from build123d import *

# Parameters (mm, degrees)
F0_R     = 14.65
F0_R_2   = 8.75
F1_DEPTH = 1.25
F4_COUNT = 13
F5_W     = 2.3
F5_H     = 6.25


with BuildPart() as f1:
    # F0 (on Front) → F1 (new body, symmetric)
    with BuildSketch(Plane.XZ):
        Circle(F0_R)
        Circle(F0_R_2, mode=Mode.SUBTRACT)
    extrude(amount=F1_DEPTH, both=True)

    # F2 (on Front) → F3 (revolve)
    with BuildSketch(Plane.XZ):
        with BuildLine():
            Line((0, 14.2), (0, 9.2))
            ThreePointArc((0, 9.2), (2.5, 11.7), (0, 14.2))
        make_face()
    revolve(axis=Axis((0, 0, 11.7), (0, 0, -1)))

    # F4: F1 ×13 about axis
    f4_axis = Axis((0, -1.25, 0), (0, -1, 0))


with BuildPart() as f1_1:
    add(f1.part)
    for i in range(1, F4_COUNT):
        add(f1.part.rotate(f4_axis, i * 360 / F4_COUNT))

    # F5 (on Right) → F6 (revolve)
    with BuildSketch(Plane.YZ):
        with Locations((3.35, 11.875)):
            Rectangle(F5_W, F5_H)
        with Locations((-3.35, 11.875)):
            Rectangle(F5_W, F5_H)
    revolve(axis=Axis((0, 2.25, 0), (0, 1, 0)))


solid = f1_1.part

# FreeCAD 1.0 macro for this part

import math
import FreeCAD as App
import Part
import Sketcher

V = App.Vector
Q = App.Units.Quantity


def add_polygon(sketch, points):
    """Adds a closed chain of lines whose ends are joined by coincident constraints."""
    first, n = sketch.GeometryCount, len(points)
    for a, b in zip(points, points[1:] + points[:1]):
        sketch.addGeometry(Part.LineSegment(App.Vector(*a, 0), App.Vector(*b, 0)), False)
    for i in range(n):
        sketch.addConstraint(Sketcher.Constraint("Coincident", first + i, 2, first + (i + 1) % n, 1))

doc = App.newDocument("Part")
body = doc.addObject("PartDesign::Body", "Body")

# Sketch on XZ plane
sketch1 = body.newObject("Sketcher::SketchObject", "Sketch")
sketch1.AttachmentSupport = (doc.getObject("XZ_Plane"), [""])
sketch1.MapMode = "FlatFace"
sketch1.addGeometry([
    Part.Circle(V(0, 0, 0), V(0, 0, 1), 15),
    Part.Circle(V(0, 0, 0), V(0, 0, 1), 9),
], False)
sketch1.addConstraint([
    Sketcher.Constraint("Coincident", 0, 3, -1, 1),
    Sketcher.Constraint("Coincident", 1, 3, -1, 1),
    Sketcher.Constraint("Diameter", 0, Q("29.3 mm")),
    Sketcher.Constraint("Diameter", 1, Q("17.5 mm")),
])
pad1 = body.newObject("PartDesign::Pad", "Pad")
pad1.Profile = sketch1
pad1.Length = 2.5
pad1.Midplane = True

# Sketch on XZ plane
sketch2 = body.newObject("Sketcher::SketchObject", "Sketch001")
sketch2.AttachmentSupport = (doc.getObject("XZ_Plane"), [""])
sketch2.MapMode = "FlatFace"
sketch2.addGeometry([
    Part.LineSegment(V(0, 14.2, 0), V(0, 9.2, 0)),
    Part.ArcOfCircle(Part.Circle(V(0, 11.7, 0), V(0, 0, 1), 2.5), math.radians(-90), math.radians(90)),
], False)
sketch2.addConstraint([
    Sketcher.Constraint("Coincident", 0, 1, 1, 2),
    Sketcher.Constraint("Coincident", 1, 1, 0, 2),
    Sketcher.Constraint("Vertical", 0),
    Sketcher.Constraint("PointOnObject", 1, 3, -2),
    Sketcher.Constraint("PointOnObject", 0, 1, -2),
    Sketcher.Constraint("Radius", 1, Q("2.5 mm")),
    Sketcher.Constraint("DistanceY", -1, 1, 1, 3, Q("11.7 mm")),
])
revolution = body.newObject("PartDesign::Revolution", "Revolution")
revolution.Profile = sketch2
revolution.ReferenceAxis = (sketch2, ["V_Axis"])
revolution.Angle = 360
body2 = doc.addObject("PartDesign::Body", "Body001")
doc.recompute()

body2.BaseFeature = body
doc.recompute()

body3 = doc.addObject("PartDesign::Body", "Body002")
body3.BaseFeature = body
body3.Placement = App.Placement(V(0, 0, 0), App.Rotation(V(0, -1, 0), 27.692308))
boolean = body2.newObject("PartDesign::Boolean", "Boolean")
boolean.Type = "Fuse"
boolean.addObjects([body3])
doc.recompute()

body4 = doc.addObject("PartDesign::Body", "Body003")
body4.BaseFeature = body
body4.Placement = App.Placement(V(0, 0, 0), App.Rotation(V(0, -1, 0), 55.384615))
boolean2 = body2.newObject("PartDesign::Boolean", "Boolean001")
boolean2.Type = "Fuse"
boolean2.addObjects([body4])
doc.recompute()

body5 = doc.addObject("PartDesign::Body", "Body004")
body5.BaseFeature = body
body5.Placement = App.Placement(V(0, 0, 0), App.Rotation(V(0, -1, 0), 83.076923))
boolean3 = body2.newObject("PartDesign::Boolean", "Boolean002")
boolean3.Type = "Fuse"
boolean3.addObjects([body5])
doc.recompute()

body6 = doc.addObject("PartDesign::Body", "Body005")
body6.BaseFeature = body
body6.Placement = App.Placement(V(0, 0, 0), App.Rotation(V(0, -1, 0), 110.769231))
boolean4 = body2.newObject("PartDesign::Boolean", "Boolean003")
boolean4.Type = "Fuse"
boolean4.addObjects([body6])
doc.recompute()

body7 = doc.addObject("PartDesign::Body", "Body006")
body7.BaseFeature = body
body7.Placement = App.Placement(V(0, 0, 0), App.Rotation(V(0, -1, 0), 138.461538))
boolean5 = body2.newObject("PartDesign::Boolean", "Boolean004")
boolean5.Type = "Fuse"
boolean5.addObjects([body7])
doc.recompute()

body8 = doc.addObject("PartDesign::Body", "Body007")
body8.BaseFeature = body
body8.Placement = App.Placement(V(0, 0, 0), App.Rotation(V(0, -1, 0), 166.153846))
boolean6 = body2.newObject("PartDesign::Boolean", "Boolean005")
boolean6.Type = "Fuse"
boolean6.addObjects([body8])
doc.recompute()

body9 = doc.addObject("PartDesign::Body", "Body008")
body9.BaseFeature = body
body9.Placement = App.Placement(V(0, 0, 0), App.Rotation(V(0, -1, 0), 193.846154))
boolean7 = body2.newObject("PartDesign::Boolean", "Boolean006")
boolean7.Type = "Fuse"
boolean7.addObjects([body9])
doc.recompute()

body10 = doc.addObject("PartDesign::Body", "Body009")
body10.BaseFeature = body
body10.Placement = App.Placement(V(0, 0, 0), App.Rotation(V(0, -1, 0), 221.538462))
boolean8 = body2.newObject("PartDesign::Boolean", "Boolean007")
boolean8.Type = "Fuse"
boolean8.addObjects([body10])
doc.recompute()

body11 = doc.addObject("PartDesign::Body", "Body010")
body11.BaseFeature = body
body11.Placement = App.Placement(V(0, 0, 0), App.Rotation(V(0, -1, 0), 249.230769))
boolean9 = body2.newObject("PartDesign::Boolean", "Boolean008")
boolean9.Type = "Fuse"
boolean9.addObjects([body11])
doc.recompute()

body12 = doc.addObject("PartDesign::Body", "Body011")
body12.BaseFeature = body
body12.Placement = App.Placement(V(0, 0, 0), App.Rotation(V(0, -1, 0), 276.923077))
boolean10 = body2.newObject("PartDesign::Boolean", "Boolean009")
boolean10.Type = "Fuse"
boolean10.addObjects([body12])
doc.recompute()

body13 = doc.addObject("PartDesign::Body", "Body012")
body13.BaseFeature = body
body13.Placement = App.Placement(V(0, 0, 0), App.Rotation(V(0, -1, 0), 304.615385))
boolean11 = body2.newObject("PartDesign::Boolean", "Boolean010")
boolean11.Type = "Fuse"
boolean11.addObjects([body13])
doc.recompute()

body.Placement = App.Placement(V(0, 0, 0), App.Rotation(V(0, -1, 0), 332.307692))
boolean12 = body2.newObject("PartDesign::Boolean", "Boolean011")
boolean12.Type = "Fuse"
boolean12.addObjects([body])

# Sketch on YZ plane
sketch3 = body2.newObject("Sketcher::SketchObject", "Sketch002")
sketch3.AttachmentSupport = (doc.getObject("YZ_Plane001"), [""])
sketch3.MapMode = "FlatFace"
add_polygon(sketch3, [(2.2, 15), (2.2, 8.8), (4.5, 8.8), (4.5, 15)])  # lines 0-3
add_polygon(sketch3, [(-4.5, 15), (-4.5, 8.8), (-2.2, 8.8), (-2.2, 15)])  # lines 4-7
sketch3.addConstraint([
    Sketcher.Constraint("Vertical", 0),
    Sketcher.Constraint("Horizontal", 1),
    Sketcher.Constraint("Vertical", 2),
    Sketcher.Constraint("Horizontal", 3),
    Sketcher.Constraint("Vertical", 4),
    Sketcher.Constraint("Horizontal", 5),
    Sketcher.Constraint("Vertical", 6),
    Sketcher.Constraint("Horizontal", 7),
    Sketcher.Constraint("Symmetric", 1, 2, 4, 2, -2),
    Sketcher.Constraint("Symmetric", 3, 2, 6, 2, -2),
    Sketcher.Constraint("DistanceX", 1, 1, 1, 2, Q("2.3 mm")),
    Sketcher.Constraint("DistanceY", -1, 1, 2, 2, Q("15 mm")),
    Sketcher.Constraint("DistanceX", 4, 2, 1, 2, Q("9 mm")),
    Sketcher.Constraint("DistanceY", 0, 2, 0, 1, Q("6.25 mm")),
])
revolution2 = body2.newObject("PartDesign::Revolution", "Revolution001")
revolution2.Profile = sketch3
revolution2.ReferenceAxis = (sketch3, ["H_Axis"])
revolution2.Angle = 360

doc.recompute()
